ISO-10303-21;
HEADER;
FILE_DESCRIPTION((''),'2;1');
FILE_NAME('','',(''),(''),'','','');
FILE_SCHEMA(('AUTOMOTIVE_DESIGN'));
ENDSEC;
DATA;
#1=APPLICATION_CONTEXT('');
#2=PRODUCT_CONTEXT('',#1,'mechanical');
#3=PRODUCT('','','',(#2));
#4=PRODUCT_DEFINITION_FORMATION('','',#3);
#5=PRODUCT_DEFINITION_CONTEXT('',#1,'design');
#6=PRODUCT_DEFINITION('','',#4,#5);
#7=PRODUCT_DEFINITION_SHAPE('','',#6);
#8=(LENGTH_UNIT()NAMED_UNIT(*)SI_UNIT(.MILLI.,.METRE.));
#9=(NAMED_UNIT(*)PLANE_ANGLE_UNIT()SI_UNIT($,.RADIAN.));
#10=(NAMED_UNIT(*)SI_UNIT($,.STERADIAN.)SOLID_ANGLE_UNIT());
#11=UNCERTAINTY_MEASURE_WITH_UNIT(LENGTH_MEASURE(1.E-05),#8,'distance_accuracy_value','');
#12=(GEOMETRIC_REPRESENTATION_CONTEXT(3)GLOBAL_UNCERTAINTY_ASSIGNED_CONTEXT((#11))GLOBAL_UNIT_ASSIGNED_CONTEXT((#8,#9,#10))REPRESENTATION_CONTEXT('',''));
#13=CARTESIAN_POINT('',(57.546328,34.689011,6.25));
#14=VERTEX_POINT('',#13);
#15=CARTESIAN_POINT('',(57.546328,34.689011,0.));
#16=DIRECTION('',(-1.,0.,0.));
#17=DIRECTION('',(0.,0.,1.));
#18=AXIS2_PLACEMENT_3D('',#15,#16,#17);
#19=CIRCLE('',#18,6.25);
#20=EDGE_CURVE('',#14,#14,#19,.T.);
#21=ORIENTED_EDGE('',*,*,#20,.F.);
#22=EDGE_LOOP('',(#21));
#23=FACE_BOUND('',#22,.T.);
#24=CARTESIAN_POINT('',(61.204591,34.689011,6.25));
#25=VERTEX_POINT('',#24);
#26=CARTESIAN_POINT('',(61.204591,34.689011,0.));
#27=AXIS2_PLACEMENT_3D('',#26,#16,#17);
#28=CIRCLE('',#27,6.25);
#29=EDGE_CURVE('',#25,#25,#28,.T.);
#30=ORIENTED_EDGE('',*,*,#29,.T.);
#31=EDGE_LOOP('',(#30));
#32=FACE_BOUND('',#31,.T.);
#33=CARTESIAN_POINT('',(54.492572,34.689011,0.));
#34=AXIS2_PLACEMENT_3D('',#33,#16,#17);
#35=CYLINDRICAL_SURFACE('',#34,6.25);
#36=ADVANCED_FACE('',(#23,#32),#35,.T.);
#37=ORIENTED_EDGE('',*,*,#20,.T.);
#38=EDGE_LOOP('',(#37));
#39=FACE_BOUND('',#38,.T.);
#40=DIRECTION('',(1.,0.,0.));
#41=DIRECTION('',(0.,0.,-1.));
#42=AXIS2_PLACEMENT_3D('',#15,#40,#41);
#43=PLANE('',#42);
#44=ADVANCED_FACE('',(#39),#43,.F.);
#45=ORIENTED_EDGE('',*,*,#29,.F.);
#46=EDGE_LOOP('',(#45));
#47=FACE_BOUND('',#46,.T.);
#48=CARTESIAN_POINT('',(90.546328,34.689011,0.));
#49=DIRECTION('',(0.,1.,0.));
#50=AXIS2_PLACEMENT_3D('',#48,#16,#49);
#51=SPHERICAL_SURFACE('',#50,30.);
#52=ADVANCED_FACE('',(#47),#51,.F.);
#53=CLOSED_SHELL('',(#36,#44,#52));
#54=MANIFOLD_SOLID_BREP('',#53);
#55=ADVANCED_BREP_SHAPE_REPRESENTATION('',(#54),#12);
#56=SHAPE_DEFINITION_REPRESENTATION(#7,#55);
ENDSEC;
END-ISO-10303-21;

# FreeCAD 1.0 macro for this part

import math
import FreeCAD as App
import Part
import Sketcher

V = App.Vector
Q = App.Units.Quantity

doc = App.newDocument("Part")
body = doc.addObject("PartDesign::Body", "Body")

# Sketch on XY plane
sketch1 = body.newObject("Sketcher::SketchObject", "Sketch")
sketch1.AttachmentSupport = (doc.getObject("XY_Plane"), [""])
sketch1.MapMode = "FlatFace"
sketch1.addGeometry(Part.LineSegment(V(57.5, 40.9, 0), V(57.5, 34.7, 0)), False)
sketch1.addGeometry(Part.LineSegment(V(57.5, 34.7, 0), V(60.5, 34.7, 0)), False)
sketch1.addGeometry(Part.ArcOfCircle(Part.Circle(V(90.5, 34.7, 0), V(0, 0, 1), 30), math.radians(167.98), math.radians(180)), False)
sketch1.addGeometry(Part.LineSegment(V(61.2, 40.9, 0), V(57.5, 40.9, 0)), False)
sketch1.addGeometry(Part.LineSegment(V(57.5, 34.7, 0), V(90.5, 34.7, 0)), True)  # axis
sketch1.addConstraint(Sketcher.Constraint("Coincident", 0, 2, 1, 1))
sketch1.addConstraint(Sketcher.Constraint("Coincident", 1, 2, 2, 2))
sketch1.addConstraint(Sketcher.Constraint("Coincident", 2, 1, 3, 1))
sketch1.addConstraint(Sketcher.Constraint("Coincident", 3, 2, 0, 1))
sketch1.addConstraint(Sketcher.Constraint("Vertical", 0))
sketch1.addConstraint(Sketcher.Constraint("Horizontal", 1))
sketch1.addConstraint(Sketcher.Constraint("Horizontal", 3))
sketch1.addConstraint(Sketcher.Constraint("Horizontal", 4))
sketch1.addConstraint(Sketcher.Constraint("Coincident", 4, 1, 0, 2))
sketch1.addConstraint(Sketcher.Constraint("Coincident", 4, 2, 2, 3))
sketch1.addConstraint(Sketcher.Constraint("Radius", 2, Q("30 mm")))
sketch1.addConstraint(Sketcher.Constraint("DistanceX", 1, 1, 1, 2, Q("3 mm")))
sketch1.addConstraint(Sketcher.Constraint("DistanceY", 0, 2, 0, 1, Q("6.25 mm")))
sketch1.addConstraint(Sketcher.Constraint("DistanceY", -1, 1, 2, 3, Q("34.689011 mm")))
sketch1.addConstraint(Sketcher.Constraint("DistanceX", -1, 1, 2, 1, Q("61.204591 mm")))
revolution = body.newObject("PartDesign::Revolution", "Revolution")
revolution.Profile = sketch1
revolution.ReferenceAxis = (sketch1, ["Axis0"])
revolution.Angle = 360

doc.recompute()
